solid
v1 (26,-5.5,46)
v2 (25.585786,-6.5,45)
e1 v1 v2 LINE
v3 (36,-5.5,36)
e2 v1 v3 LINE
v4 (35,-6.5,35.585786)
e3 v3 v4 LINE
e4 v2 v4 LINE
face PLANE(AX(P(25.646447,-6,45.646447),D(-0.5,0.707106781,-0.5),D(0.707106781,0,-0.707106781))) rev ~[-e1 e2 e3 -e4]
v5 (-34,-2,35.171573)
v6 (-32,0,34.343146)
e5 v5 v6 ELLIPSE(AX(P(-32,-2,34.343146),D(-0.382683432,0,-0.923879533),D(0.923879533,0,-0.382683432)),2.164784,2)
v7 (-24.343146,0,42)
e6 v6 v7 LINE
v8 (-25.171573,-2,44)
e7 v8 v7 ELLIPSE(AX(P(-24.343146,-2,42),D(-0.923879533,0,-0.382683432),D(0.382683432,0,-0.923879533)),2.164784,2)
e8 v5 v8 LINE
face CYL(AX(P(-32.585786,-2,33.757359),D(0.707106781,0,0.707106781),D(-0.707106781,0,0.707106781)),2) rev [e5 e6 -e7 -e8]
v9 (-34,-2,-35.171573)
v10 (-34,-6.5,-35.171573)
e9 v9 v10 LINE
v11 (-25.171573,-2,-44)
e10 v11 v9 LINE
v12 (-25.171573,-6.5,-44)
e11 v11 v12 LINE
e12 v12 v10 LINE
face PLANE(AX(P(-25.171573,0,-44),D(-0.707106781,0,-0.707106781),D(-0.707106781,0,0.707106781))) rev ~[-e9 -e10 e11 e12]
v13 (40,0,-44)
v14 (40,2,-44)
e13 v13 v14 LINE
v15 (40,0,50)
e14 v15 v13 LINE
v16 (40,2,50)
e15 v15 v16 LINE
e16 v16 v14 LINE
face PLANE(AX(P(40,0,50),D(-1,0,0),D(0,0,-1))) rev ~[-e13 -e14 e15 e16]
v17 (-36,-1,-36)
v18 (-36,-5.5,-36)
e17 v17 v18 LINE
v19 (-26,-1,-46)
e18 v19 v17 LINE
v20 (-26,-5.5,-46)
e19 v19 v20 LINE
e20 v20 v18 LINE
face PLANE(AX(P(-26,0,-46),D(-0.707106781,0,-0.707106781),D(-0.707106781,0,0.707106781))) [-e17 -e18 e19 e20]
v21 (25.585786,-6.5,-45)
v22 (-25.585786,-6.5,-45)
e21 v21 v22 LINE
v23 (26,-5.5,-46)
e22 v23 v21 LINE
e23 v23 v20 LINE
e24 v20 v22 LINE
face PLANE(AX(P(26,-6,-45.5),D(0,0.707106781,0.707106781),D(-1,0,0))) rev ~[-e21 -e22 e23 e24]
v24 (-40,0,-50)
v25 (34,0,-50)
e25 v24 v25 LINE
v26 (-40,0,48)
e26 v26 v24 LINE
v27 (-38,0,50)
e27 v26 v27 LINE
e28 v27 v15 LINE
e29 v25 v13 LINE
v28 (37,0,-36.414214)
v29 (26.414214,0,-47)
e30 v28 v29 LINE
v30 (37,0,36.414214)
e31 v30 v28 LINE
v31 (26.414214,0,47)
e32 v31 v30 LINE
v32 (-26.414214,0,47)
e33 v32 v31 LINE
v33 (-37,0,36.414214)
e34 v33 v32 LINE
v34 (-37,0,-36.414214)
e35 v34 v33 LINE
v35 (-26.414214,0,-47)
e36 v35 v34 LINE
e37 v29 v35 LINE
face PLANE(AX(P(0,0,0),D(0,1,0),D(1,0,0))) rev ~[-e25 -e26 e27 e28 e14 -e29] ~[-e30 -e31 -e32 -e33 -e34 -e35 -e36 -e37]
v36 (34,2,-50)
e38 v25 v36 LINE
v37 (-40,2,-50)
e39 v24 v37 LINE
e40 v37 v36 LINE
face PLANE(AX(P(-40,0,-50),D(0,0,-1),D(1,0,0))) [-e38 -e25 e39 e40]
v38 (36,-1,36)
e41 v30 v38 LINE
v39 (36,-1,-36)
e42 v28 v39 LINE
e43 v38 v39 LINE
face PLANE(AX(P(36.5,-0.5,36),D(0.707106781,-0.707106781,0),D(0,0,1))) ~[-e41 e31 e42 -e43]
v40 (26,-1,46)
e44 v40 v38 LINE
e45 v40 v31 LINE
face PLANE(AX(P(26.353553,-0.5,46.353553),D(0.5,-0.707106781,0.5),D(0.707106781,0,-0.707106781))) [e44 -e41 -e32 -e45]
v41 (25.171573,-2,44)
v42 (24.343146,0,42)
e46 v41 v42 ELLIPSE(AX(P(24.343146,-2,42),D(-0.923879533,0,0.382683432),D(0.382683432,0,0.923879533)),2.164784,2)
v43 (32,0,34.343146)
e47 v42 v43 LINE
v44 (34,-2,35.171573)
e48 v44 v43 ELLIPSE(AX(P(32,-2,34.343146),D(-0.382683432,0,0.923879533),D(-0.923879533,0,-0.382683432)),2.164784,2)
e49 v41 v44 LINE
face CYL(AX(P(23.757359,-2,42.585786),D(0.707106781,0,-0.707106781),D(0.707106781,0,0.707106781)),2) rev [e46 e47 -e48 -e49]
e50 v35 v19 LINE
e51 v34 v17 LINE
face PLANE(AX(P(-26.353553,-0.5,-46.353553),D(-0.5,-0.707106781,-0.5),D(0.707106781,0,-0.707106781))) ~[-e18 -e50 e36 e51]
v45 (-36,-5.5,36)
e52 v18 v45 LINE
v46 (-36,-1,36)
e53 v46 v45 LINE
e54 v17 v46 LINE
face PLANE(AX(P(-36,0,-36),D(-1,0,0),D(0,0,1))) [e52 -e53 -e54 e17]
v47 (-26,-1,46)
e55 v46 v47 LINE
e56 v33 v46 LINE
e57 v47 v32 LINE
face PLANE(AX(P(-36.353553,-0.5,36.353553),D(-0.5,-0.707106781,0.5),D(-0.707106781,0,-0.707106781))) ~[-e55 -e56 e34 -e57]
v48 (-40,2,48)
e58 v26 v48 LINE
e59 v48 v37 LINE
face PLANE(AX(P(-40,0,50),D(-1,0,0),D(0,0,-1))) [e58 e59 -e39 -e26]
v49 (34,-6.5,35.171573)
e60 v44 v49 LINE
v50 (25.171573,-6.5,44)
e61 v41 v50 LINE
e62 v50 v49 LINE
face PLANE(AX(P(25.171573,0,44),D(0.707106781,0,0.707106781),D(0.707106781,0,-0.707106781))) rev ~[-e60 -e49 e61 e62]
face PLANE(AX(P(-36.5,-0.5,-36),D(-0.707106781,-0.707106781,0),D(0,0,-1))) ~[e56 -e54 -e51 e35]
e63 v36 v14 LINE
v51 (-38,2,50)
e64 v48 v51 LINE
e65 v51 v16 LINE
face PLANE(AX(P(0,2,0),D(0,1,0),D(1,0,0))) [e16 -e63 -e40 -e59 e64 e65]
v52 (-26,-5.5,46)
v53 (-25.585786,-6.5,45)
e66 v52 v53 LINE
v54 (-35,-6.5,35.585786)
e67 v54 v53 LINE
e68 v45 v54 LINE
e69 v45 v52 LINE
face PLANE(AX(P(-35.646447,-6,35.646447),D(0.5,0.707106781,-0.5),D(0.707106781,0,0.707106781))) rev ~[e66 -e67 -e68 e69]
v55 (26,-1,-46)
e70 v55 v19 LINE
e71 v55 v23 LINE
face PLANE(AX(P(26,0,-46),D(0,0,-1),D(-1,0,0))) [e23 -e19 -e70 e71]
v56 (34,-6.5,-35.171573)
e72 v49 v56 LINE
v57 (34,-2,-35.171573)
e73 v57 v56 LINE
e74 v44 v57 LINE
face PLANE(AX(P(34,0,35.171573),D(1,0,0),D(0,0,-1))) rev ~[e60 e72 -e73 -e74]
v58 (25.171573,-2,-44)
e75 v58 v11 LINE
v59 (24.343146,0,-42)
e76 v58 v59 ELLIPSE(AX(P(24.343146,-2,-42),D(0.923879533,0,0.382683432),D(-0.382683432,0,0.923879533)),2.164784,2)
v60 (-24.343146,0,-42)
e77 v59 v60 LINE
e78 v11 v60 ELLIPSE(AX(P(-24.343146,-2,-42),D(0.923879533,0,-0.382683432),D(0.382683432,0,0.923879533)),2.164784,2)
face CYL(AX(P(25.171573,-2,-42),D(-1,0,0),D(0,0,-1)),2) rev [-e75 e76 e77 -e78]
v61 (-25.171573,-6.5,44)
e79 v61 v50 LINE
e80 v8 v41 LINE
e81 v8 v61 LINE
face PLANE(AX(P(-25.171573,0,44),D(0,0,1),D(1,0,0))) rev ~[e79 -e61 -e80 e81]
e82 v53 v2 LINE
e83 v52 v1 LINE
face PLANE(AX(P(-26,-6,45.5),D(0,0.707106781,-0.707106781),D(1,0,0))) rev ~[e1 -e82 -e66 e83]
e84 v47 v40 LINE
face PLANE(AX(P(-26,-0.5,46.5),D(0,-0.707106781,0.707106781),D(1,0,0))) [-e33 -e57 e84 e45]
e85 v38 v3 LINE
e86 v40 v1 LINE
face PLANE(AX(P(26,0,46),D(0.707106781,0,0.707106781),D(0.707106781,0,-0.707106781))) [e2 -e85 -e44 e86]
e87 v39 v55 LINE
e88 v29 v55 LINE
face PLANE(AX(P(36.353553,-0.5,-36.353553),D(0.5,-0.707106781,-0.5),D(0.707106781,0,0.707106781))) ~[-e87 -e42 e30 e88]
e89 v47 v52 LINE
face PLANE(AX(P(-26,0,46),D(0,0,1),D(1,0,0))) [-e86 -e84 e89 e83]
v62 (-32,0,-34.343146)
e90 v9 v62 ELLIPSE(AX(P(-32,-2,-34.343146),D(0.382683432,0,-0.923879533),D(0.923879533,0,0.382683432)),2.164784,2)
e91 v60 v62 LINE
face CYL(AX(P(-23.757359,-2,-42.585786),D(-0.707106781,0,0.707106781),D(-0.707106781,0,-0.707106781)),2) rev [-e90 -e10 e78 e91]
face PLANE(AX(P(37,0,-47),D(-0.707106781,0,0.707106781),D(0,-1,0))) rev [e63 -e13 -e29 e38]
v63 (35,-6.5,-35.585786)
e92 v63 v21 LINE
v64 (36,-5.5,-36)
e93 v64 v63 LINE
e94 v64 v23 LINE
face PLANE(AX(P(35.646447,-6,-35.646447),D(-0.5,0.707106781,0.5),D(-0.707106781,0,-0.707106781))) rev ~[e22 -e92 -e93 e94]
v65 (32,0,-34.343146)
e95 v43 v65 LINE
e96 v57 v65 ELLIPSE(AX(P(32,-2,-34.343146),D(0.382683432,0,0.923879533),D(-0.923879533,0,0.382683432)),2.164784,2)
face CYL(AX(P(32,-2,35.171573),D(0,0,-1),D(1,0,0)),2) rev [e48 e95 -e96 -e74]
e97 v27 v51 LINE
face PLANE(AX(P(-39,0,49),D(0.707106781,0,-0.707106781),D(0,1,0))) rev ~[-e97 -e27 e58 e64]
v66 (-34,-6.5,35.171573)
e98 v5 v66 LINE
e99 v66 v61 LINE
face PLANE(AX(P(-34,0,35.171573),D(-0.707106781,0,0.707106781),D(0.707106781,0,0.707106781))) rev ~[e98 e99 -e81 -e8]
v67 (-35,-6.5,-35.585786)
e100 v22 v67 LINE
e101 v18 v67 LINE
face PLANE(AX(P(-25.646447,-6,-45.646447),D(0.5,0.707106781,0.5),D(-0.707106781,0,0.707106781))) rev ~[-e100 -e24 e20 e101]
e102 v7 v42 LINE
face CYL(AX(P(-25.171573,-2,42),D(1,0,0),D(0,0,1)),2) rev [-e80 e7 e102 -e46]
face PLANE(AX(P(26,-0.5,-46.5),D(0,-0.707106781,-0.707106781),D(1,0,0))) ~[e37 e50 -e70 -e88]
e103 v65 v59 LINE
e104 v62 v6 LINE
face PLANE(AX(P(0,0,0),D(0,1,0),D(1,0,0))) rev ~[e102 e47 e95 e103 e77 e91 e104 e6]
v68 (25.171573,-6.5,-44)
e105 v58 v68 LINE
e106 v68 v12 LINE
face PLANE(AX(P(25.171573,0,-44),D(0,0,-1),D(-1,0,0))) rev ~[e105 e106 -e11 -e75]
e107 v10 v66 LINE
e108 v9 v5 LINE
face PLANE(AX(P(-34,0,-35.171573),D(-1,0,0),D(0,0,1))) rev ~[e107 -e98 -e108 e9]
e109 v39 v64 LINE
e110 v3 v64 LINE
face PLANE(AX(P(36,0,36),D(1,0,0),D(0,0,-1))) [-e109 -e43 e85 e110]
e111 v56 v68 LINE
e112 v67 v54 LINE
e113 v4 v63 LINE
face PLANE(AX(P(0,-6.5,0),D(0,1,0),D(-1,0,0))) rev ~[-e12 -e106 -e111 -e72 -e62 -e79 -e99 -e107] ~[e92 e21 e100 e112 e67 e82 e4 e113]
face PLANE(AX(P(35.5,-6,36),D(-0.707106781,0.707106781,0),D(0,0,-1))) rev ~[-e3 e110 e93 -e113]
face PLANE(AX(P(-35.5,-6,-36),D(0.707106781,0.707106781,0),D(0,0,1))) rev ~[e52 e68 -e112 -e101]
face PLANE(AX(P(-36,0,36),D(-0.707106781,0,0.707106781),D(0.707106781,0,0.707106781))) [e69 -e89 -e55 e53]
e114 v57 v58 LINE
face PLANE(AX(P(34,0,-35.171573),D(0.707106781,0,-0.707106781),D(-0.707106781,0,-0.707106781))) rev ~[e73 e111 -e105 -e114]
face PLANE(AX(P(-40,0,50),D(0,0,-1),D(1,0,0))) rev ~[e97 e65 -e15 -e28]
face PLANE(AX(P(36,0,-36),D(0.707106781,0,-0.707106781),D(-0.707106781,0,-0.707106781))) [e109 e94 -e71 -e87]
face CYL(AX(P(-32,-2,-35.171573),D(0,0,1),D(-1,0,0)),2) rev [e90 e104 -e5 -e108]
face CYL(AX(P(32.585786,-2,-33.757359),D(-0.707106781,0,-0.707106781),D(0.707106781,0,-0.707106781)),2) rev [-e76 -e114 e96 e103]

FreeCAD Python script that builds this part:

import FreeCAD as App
import Part
import Sketcher
from FreeCAD import Vector


def edges_at(feature, points):
    """Names of the edges that pass closest to the given points."""
    edges = feature.Shape.Edges
    near = lambda p: min(range(len(edges)), key=lambda i: edges[i].distToShape(Part.Vertex(*p))[0])
    return sorted({f"Edge{near(p) + 1}" for p in points})


def add_polygon(sketch, points):
    """Adds a closed chain of lines whose ends are joined by coincident constraints."""
    first, n = sketch.GeometryCount, len(points)
    for a, b in zip(points, points[1:] + points[:1]):
        sketch.addGeometry(Part.LineSegment(App.Vector(*a, 0), App.Vector(*b, 0)), False)
    for i in range(n):
        sketch.addConstraint(Sketcher.Constraint("Coincident", first + i, 2, first + (i + 1) % n, 1))

doc = App.newDocument("Part")
body = doc.addObject("PartDesign::Body", "Body")

sketch1 = doc.addObject("Sketcher::SketchObject", "Sketch")
body.addObject(sketch1)
sketch1.AttachmentSupport = (doc.XZ_Plane, [""])
sketch1.MapMode = "FlatFace"
add_polygon(sketch1, [(-40, -50), (-40, 50), (40, 50), (40, -50)])
sketch1.addConstraint([
    Sketcher.Constraint("Vertical", 0),
    Sketcher.Constraint("Horizontal", 1),
    Sketcher.Constraint("Vertical", 2),
    Sketcher.Constraint("Horizontal", 3),
    Sketcher.Constraint("Symmetric", 0, 2, 2, 2, -1, 1),
    Sketcher.Constraint("DistanceX", 1, 1, 1, 2, 80.0),
    Sketcher.Constraint("DistanceY", 0, 1, 0, 2, 100.0),
])
pad1 = doc.addObject("PartDesign::Pad", "Pad")
body.addObject(pad1)
pad1.Profile = sketch1
pad1.Length = 2
pad1.Reversed = True
doc.recompute()

chamfer = doc.addObject("PartDesign::Chamfer", "Chamfer")
body.addObject(chamfer)
chamfer.Base = (pad1, edges_at(pad1, [(-40, 1, 50)]))
chamfer.Size = 2
doc.recompute()

chamfer2 = doc.addObject("PartDesign::Chamfer", "Chamfer001")
body.addObject(chamfer2)
chamfer2.Base = (chamfer, edges_at(chamfer, [(40, 1, -50)]))
chamfer2.Size = 6

sketch2 = doc.addObject("Sketcher::SketchObject", "Sketch001")
body.addObject(sketch2)
sketch2.AttachmentSupport = (doc.XZ_Plane, [""])
sketch2.MapMode = "FlatFace"
add_polygon(sketch2, [(36, 36), (26, 46), (-26, 46), (-36, 36), (-36, -36), (-26, -46), (26, -46), (36, -36)])
add_polygon(sketch2, [(25.171573, 44), (34, 35.171573), (34, -35.171573), (25.171573, -44), (-25.171573, -44), (-34, -35.171573), (-34, 35.171573), (-25.171573, 44)])
sketch2.addConstraint([
    Sketcher.Constraint("Horizontal", 1),
    Sketcher.Constraint("Vertical", 3),
    Sketcher.Constraint("Horizontal", 5),
    Sketcher.Constraint("Vertical", 7),
    Sketcher.Constraint("Vertical", 9),
    Sketcher.Constraint("Horizontal", 11),
    Sketcher.Constraint("Vertical", 13),
    Sketcher.Constraint("Horizontal", 15),
    Sketcher.Constraint("Symmetric", 0, 2, 4, 2, -1, 1),
    Sketcher.Constraint("Symmetric", 2, 2, 6, 2, -1, 1),
    Sketcher.Constraint("Symmetric", 8, 2, 12, 2, -1, 1),
    Sketcher.Constraint("Symmetric", 10, 2, 14, 2, -1, 1),
    Sketcher.Constraint("Perpendicular", 0, 2),
    Sketcher.Constraint("Perpendicular", 2, 4),
    Sketcher.Constraint("Perpendicular", 4, 6),
    Sketcher.Constraint("Perpendicular", 6, 8),
    Sketcher.Constraint("Perpendicular", 8, 10),
    Sketcher.Constraint("Perpendicular", 10, 12),
    Sketcher.Constraint("Perpendicular", 12, 14),
    Sketcher.Constraint("Horizontal", 3, 2, 6, 2),
    Sketcher.Constraint("Horizontal", 9, 2, 12, 2),
    Sketcher.Constraint("Vertical", 1, 2, 4, 2),
    Sketcher.Constraint("DistanceX", 1, 2, 1, 1, 52.0),
    Sketcher.Constraint("DistanceY", 3, 2, 3, 1, 72.0),
    Sketcher.Constraint("DistanceY", -1, 1, 0, 2, 46.0),
    Sketcher.Constraint("DistanceX", -1, 1, 8, 2, 34.0),
    Sketcher.Constraint("DistanceY", 10, 2, -1, 1, 44.0),
    Sketcher.Constraint("Distance", 8, 12.485281),
])
pad2 = doc.addObject("PartDesign::Pad", "Pad001")
body.addObject(pad2)
pad2.Profile = sketch2
pad2.Length = 6.5
doc.recompute()

chamfer3 = doc.addObject("PartDesign::Chamfer", "Chamfer002")
body.addObject(chamfer3)
chamfer3.Base = (pad2, edges_at(pad2, [
    (0, -6.5, 46),
    (-31, -6.5, 41),
    (-36, -6.5, 0),
    (-31, -6.5, -41),
    (0, -6.5, -46),
    (31, -6.5, -41),
    (36, -6.5, 0),
    (31, -6.5, 41),
]))
chamfer3.Size = 1
doc.recompute()

chamfer4 = doc.addObject("PartDesign::Chamfer", "Chamfer003")
body.addObject(chamfer4)
chamfer4.Base = (chamfer3, edges_at(chamfer3, [
    (0, 0, 46),
    (-31, 0, 41),
    (-36, 0, 0),
    (-31, 0, -41),
    (0, 0, -46),
    (31, 0, -41),
    (36, 0, 0),
    (31, 0, 41),
]))
chamfer4.Size = 1
doc.recompute()

fillet = doc.addObject("PartDesign::Fillet", "Fillet")
body.addObject(fillet)
fillet.Base = (chamfer4, edges_at(chamfer4, [
    (0, 0, 44),
    (-29.586, 0, 39.586),
    (-34, 0, 0),
    (-29.586, 0, -39.586),
    (0, 0, -44),
    (29.586, 0, -39.586),
    (34, 0, 0),
    (29.586, 0, 39.586),
]))
fillet.Radius = 2

doc.recompute()
